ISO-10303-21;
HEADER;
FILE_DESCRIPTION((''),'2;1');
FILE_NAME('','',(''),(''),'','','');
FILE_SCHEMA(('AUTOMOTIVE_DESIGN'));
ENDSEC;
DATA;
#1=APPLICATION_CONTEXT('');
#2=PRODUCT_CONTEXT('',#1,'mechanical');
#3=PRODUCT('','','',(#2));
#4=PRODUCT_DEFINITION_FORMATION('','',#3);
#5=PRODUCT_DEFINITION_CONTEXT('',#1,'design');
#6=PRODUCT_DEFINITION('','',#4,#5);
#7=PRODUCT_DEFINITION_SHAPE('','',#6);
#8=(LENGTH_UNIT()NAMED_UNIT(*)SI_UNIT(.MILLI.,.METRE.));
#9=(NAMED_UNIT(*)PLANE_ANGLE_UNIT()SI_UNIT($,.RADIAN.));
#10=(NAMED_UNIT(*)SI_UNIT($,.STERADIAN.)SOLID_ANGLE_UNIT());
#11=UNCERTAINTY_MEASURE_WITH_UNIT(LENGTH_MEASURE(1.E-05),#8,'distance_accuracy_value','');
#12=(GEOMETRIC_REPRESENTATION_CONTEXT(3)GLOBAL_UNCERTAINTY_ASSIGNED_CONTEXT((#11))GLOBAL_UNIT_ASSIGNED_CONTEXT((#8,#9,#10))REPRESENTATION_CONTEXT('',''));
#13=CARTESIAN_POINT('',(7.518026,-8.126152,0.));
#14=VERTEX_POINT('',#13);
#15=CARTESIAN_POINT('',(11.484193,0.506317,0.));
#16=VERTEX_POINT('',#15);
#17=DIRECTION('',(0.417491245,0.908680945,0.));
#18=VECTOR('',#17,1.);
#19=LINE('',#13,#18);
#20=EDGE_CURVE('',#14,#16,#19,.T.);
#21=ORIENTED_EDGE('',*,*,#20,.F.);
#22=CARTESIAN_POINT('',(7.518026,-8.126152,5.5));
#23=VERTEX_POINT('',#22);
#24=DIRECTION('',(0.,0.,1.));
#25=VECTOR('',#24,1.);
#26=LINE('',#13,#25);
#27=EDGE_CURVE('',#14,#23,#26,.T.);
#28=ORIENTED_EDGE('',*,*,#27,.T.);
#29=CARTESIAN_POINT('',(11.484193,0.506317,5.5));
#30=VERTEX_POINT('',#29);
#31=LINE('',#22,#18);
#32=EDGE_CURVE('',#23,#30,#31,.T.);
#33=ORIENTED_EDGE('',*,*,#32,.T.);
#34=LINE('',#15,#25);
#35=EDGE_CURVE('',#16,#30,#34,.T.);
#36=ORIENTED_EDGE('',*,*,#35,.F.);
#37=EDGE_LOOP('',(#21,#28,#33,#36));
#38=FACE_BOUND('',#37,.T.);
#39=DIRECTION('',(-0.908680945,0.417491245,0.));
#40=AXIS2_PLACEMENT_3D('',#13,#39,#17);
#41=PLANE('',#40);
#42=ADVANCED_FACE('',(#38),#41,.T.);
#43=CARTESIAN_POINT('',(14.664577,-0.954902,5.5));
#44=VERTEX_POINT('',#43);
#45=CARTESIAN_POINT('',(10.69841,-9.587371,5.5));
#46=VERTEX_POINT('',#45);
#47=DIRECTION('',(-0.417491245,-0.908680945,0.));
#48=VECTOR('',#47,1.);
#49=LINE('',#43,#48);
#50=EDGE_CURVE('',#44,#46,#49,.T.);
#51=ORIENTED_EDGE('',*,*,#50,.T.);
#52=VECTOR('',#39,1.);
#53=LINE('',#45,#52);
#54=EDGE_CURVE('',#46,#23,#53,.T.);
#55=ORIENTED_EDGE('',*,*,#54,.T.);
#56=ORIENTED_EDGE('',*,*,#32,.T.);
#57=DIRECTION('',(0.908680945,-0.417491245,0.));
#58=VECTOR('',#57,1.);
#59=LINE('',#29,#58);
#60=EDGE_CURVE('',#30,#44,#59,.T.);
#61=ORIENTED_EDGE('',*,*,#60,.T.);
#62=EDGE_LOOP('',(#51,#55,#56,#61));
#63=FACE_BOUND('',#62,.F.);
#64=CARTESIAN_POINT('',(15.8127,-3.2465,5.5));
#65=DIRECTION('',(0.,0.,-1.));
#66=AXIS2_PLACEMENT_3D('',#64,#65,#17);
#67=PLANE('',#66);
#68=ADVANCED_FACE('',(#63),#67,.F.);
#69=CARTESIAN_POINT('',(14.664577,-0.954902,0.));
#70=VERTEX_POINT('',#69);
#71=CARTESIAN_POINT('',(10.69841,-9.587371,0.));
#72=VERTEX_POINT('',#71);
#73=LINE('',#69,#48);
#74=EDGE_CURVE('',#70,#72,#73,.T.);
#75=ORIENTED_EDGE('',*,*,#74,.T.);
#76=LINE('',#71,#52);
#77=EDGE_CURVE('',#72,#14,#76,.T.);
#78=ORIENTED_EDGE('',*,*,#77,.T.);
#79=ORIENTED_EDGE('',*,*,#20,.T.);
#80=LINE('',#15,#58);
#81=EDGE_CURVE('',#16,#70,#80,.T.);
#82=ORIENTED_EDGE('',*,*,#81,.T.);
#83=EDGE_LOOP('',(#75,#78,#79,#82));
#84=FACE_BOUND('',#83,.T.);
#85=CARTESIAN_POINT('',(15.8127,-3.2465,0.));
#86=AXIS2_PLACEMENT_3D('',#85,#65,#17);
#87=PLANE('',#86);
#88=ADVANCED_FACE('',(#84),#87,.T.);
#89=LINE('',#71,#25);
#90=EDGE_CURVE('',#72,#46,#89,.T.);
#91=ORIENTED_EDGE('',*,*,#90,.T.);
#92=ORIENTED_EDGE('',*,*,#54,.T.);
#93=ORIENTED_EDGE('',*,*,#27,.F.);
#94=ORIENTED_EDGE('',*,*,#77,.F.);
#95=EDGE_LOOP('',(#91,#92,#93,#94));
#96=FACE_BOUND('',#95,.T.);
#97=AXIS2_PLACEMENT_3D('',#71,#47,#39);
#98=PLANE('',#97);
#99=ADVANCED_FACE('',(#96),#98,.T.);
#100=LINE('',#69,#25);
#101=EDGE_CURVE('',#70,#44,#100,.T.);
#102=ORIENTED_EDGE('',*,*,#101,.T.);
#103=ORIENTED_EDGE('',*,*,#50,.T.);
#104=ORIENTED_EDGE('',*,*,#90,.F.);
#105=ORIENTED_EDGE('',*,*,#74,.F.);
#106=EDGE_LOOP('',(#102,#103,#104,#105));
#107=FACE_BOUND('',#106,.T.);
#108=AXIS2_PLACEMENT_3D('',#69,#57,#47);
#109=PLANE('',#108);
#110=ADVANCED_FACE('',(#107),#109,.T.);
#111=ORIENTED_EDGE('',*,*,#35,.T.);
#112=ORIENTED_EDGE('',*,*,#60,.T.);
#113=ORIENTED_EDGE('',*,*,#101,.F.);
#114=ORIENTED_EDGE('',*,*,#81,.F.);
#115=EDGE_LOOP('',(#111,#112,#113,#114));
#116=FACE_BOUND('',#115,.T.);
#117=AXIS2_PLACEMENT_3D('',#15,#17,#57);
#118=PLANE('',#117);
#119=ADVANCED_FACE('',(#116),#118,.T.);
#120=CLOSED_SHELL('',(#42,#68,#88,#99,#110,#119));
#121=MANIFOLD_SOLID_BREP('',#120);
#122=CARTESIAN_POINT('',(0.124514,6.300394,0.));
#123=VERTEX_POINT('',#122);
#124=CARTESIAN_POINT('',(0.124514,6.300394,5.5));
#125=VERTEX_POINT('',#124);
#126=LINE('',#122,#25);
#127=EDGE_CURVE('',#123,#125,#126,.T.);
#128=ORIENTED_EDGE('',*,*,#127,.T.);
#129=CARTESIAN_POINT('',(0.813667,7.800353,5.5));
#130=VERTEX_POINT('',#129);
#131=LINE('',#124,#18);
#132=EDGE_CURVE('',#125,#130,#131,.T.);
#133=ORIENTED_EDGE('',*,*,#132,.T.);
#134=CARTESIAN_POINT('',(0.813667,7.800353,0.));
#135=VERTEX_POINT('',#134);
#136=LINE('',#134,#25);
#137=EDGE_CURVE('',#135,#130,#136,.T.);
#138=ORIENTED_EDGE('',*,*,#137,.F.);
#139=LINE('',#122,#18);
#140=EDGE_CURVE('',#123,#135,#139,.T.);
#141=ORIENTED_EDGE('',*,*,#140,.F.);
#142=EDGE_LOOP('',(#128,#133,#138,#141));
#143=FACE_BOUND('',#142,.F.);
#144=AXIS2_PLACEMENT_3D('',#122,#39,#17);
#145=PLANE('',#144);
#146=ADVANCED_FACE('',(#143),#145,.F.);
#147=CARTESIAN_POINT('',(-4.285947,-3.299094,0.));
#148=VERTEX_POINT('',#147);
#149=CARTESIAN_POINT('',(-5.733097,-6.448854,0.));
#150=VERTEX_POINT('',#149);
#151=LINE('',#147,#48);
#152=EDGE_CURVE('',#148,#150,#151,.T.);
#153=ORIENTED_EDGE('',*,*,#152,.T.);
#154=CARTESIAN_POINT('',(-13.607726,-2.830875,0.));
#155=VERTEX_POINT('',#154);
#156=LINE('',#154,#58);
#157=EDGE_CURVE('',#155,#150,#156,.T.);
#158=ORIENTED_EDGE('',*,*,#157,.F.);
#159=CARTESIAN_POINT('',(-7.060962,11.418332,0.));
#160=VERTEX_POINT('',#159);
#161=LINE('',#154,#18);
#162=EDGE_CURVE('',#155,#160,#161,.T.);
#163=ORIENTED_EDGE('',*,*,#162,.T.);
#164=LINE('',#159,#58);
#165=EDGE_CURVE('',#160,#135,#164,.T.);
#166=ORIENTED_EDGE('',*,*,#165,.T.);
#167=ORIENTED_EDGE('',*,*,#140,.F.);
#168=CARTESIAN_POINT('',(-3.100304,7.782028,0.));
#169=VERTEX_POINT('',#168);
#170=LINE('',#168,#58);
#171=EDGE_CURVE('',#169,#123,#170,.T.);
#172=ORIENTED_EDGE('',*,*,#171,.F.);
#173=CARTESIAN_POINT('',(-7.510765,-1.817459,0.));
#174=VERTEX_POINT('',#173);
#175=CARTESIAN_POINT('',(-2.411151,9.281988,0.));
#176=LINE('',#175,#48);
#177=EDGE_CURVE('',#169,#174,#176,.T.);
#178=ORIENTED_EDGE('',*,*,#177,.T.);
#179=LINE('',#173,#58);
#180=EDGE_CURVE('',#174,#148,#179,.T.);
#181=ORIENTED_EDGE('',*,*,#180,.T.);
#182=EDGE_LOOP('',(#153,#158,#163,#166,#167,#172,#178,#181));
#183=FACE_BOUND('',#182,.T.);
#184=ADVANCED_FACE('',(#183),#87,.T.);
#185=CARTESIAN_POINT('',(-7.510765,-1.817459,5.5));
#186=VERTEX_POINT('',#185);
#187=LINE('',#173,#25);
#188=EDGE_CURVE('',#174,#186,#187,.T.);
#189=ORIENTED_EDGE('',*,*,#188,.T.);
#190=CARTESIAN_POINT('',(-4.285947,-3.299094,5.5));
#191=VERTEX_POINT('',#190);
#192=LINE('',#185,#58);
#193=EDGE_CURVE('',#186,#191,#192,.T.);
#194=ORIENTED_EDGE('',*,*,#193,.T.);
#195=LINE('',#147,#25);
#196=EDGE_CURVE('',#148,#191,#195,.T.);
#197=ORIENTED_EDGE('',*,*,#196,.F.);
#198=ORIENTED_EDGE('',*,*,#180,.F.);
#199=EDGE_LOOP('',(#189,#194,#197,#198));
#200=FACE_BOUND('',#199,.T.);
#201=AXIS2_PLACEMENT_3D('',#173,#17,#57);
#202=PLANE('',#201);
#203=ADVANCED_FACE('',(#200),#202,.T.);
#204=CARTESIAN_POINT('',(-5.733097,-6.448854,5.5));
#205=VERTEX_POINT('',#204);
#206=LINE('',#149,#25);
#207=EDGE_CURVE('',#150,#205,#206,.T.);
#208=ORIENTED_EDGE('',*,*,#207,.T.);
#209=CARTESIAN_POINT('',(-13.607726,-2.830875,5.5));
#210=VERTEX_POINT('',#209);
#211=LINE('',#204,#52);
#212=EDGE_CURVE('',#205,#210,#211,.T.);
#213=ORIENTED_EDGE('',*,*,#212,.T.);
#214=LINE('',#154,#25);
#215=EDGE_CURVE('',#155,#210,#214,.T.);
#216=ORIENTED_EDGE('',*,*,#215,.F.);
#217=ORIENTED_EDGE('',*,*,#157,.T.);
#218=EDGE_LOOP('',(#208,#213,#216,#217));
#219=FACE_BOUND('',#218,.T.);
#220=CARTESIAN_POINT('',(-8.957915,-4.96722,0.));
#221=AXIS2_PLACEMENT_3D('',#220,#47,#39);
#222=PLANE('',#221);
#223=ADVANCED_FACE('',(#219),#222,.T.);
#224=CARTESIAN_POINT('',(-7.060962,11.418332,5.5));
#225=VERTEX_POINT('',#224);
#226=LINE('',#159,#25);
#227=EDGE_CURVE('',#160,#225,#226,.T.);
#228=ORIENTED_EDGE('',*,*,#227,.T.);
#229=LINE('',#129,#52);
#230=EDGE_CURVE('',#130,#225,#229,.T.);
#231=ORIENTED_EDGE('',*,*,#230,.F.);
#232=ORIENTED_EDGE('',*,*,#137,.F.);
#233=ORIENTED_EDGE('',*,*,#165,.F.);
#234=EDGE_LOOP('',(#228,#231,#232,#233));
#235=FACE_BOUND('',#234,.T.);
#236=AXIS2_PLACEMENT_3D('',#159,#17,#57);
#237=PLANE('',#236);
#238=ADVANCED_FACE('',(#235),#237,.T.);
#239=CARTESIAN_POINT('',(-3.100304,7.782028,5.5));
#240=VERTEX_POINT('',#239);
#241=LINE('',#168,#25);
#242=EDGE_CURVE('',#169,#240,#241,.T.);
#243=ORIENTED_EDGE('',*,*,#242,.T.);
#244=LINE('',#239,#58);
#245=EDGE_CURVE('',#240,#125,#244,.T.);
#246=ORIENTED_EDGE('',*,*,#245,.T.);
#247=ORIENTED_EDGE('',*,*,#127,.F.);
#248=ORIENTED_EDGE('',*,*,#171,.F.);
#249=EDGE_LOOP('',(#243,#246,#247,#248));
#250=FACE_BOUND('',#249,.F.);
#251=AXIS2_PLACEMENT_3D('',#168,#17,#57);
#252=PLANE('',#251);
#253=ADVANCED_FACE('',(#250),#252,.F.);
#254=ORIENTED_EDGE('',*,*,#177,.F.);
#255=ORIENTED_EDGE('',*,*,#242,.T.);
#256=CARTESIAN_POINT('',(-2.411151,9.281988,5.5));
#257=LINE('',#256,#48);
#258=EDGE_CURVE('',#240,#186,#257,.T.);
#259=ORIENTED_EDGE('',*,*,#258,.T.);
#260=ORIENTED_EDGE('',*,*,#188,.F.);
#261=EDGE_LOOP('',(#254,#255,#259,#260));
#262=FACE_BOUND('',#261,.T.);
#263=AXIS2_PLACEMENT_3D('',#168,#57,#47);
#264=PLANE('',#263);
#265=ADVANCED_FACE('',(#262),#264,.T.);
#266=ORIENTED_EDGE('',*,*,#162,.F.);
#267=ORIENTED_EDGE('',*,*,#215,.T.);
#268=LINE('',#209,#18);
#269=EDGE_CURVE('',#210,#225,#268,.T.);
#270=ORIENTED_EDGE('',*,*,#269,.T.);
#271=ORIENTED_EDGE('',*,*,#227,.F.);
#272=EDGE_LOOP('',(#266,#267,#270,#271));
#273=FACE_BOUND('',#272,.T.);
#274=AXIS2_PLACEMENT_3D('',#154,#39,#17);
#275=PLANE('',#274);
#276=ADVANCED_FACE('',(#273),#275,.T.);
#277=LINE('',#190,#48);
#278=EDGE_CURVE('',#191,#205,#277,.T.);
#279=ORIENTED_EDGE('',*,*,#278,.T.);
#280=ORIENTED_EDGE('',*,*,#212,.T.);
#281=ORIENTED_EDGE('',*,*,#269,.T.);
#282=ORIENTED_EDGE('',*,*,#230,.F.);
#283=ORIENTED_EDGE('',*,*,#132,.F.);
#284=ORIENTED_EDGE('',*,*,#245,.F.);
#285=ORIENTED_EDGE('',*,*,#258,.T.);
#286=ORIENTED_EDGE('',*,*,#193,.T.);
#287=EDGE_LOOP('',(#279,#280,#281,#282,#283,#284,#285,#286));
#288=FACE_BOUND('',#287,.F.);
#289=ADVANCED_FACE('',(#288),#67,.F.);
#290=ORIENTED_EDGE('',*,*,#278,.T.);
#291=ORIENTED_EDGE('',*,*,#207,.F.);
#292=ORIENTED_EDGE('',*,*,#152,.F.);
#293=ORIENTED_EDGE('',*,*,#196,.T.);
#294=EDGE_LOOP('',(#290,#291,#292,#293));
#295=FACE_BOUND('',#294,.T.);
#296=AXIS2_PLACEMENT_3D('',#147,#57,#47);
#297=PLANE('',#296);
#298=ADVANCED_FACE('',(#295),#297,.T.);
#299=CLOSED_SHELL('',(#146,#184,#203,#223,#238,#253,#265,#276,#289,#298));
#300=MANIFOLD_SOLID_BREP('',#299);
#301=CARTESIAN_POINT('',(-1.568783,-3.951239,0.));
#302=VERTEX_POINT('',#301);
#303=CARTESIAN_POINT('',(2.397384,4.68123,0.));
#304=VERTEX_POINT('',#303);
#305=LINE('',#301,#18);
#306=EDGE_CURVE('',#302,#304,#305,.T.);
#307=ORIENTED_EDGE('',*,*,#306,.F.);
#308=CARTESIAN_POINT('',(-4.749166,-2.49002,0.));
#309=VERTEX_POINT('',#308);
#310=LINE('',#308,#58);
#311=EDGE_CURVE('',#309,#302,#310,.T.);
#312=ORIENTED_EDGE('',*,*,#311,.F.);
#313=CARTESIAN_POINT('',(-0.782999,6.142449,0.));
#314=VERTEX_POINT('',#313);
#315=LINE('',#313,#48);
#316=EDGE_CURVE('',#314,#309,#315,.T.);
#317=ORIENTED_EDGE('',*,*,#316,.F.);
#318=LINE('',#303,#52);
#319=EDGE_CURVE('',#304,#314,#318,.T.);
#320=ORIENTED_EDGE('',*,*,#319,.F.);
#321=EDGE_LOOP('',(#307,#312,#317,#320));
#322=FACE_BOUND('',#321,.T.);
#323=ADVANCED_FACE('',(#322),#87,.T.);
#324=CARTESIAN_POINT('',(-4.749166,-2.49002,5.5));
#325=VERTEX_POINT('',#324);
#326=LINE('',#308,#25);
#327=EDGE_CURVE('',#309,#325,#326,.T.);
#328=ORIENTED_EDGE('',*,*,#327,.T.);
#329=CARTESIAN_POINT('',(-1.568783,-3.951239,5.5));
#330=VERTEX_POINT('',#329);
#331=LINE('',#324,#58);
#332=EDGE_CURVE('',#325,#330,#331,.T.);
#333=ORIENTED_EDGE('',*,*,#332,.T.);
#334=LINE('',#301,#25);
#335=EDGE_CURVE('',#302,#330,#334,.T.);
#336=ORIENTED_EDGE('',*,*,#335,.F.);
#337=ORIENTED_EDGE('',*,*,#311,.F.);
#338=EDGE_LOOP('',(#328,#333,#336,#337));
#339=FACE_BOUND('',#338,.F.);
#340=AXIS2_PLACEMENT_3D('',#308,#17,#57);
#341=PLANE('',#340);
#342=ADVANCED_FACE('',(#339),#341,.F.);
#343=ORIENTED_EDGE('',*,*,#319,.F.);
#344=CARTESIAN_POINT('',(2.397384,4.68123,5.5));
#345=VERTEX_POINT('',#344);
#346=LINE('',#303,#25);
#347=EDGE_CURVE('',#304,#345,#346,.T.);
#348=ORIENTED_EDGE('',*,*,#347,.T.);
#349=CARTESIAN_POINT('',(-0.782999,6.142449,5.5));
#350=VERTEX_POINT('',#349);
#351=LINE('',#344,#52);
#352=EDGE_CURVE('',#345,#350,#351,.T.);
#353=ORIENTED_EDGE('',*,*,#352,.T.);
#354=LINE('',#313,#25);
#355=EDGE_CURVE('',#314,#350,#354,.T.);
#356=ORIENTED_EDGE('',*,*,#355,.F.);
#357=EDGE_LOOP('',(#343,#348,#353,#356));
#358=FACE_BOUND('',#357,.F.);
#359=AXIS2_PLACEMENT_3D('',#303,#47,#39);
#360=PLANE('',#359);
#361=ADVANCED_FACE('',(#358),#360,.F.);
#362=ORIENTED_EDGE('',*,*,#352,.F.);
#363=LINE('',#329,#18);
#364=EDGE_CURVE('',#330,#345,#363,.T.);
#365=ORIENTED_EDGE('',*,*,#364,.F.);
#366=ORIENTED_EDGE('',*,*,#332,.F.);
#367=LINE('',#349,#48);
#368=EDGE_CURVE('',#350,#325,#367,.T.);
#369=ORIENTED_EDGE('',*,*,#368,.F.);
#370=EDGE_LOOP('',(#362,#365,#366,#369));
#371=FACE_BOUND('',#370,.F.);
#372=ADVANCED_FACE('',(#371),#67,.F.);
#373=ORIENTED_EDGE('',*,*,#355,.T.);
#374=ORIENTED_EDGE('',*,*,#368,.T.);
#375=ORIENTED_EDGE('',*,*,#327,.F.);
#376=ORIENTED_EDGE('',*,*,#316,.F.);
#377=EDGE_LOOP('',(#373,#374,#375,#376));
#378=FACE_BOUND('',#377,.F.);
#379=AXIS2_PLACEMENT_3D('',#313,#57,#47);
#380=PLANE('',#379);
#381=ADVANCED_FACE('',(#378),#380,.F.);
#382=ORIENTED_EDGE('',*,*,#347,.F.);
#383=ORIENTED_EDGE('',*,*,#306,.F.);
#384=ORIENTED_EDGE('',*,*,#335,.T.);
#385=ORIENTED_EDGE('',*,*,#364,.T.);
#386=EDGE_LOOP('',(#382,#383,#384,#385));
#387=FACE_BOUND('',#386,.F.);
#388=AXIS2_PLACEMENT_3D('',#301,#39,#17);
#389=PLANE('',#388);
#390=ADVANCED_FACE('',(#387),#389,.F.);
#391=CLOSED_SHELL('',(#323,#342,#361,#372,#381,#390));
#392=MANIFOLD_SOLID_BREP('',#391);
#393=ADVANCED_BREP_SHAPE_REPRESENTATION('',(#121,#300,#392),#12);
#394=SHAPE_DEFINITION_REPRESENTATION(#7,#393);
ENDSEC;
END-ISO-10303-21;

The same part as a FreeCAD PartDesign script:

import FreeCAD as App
import Part
import Sketcher
Q = App.Units.Quantity


def add_polygon(sketch, points):
    """Adds a closed chain of lines whose ends are joined by coincident constraints."""
    first, n = sketch.GeometryCount, len(points)
    for a, b in zip(points, points[1:] + points[:1]):
        sketch.addGeometry(Part.LineSegment(App.Vector(*a, 0), App.Vector(*b, 0)), False)
    for i in range(n):
        sketch.addConstraint(Sketcher.Constraint("Coincident", first + i, 2, first + (i + 1) % n, 1))

doc = App.newDocument("Part")
body = doc.addObject("PartDesign::Body", "Body")
body.AllowCompound = True

sketch1 = body.newObject("Sketcher::SketchObject", "Sketch")
sketch1.AttachmentSupport = (doc.getObject("XY_Plane"), [""])
sketch1.MapMode = "FlatFace"
add_polygon(sketch1, [(-4.7, -2.5), (-0.8, 6.1), (2.4, 4.7), (-1.6, -4)])
add_polygon(sketch1, [(11.5, 0.5), (14.7, -1), (10.7, -9.6), (7.5, -8.1)])
sketch1.addConstraint(Sketcher.Constraint("Perpendicular", 0, 1))
sketch1.addConstraint(Sketcher.Constraint("Perpendicular", 1, 2))
sketch1.addConstraint(Sketcher.Constraint("Perpendicular", 2, 3))
sketch1.addConstraint(Sketcher.Constraint("Parallel", 3, 4))
sketch1.addConstraint(Sketcher.Constraint("Perpendicular", 4, 5))
sketch1.addConstraint(Sketcher.Constraint("Perpendicular", 5, 6))
sketch1.addConstraint(Sketcher.Constraint("Perpendicular", 6, 7))
sketch1.addConstraint(Sketcher.Constraint("Equal", 3, 4))
sketch1.addConstraint(Sketcher.Constraint("Equal", 2, 5))
sketch1.addConstraint(Sketcher.Constraint("Distance", 0, Q("9.5 mm")))
sketch1.addConstraint(Sketcher.Constraint("Distance", 1, Q("3.5 mm")))
sketch1.addConstraint(Sketcher.Constraint("DistanceY", 3, 2, -1, 1, Q("2.49 mm")))
sketch1.addConstraint(Sketcher.Constraint("DistanceX", 0, 2, -1, 1, Q("0.783 mm")))
sketch1.addConstraint(Sketcher.Constraint("DistanceY", 4, 2, -1, 1, Q("0.955 mm")))
sketch1.addConstraint(Sketcher.Constraint("DistanceX", -1, 1, 6, 2, Q("7.518 mm")))
sketch1.addConstraint(Sketcher.Constraint("DistanceY", 6, 2, 2, 2, Q("4.175 mm")))
pad1 = body.newObject("PartDesign::Pad", "Pad")
pad1.Profile = sketch1
pad1.Length = 5.5

sketch2 = body.newObject("Sketcher::SketchObject", "Sketch001")
sketch2.AttachmentSupport = (doc.getObject("XY_Plane"), [""])
sketch2.MapMode = "FlatFace"
add_polygon(sketch2, [(-13.6, -2.8), (-7.1, 11.4), (0.8, 7.8), (0.1, 6.3), (-3.1, 7.8), (-7.5, -1.8), (-4.3, -3.3), (-5.7, -6.4)])
sketch2.addConstraint(Sketcher.Constraint("Perpendicular", 0, 1))
sketch2.addConstraint(Sketcher.Constraint("Perpendicular", 1, 2))
sketch2.addConstraint(Sketcher.Constraint("Perpendicular", 2, 3))
sketch2.addConstraint(Sketcher.Constraint("Perpendicular", 3, 4))
sketch2.addConstraint(Sketcher.Constraint("Perpendicular", 4, 5))
sketch2.addConstraint(Sketcher.Constraint("Perpendicular", 5, 6))
sketch2.addConstraint(Sketcher.Constraint("Perpendicular", 6, 7))
sketch2.addConstraint(Sketcher.Constraint("Equal", 3, 5))
sketch2.addConstraint(Sketcher.Constraint("DistanceY", 2, 2, 1, 2, Q("1.5 mm")))
sketch2.addConstraint(Sketcher.Constraint("Distance", 1, Q("8.666 mm")))
sketch2.addConstraint(Sketcher.Constraint("Distance", 3, Q("3.549 mm")))
sketch2.addConstraint(Sketcher.Constraint("DistanceX", 0, 2, -1, 1, Q("7.061 mm")))
sketch2.addConstraint(Sketcher.Constraint("DistanceY", -1, 1, 3, 2, Q("7.782 mm")))
sketch2.addConstraint(Sketcher.Constraint("DistanceX", 5, 2, -1, 1, Q("4.286 mm")))
sketch2.addConstraint(Sketcher.Constraint("DistanceY", 5, 2, -1, 1, Q("3.299 mm")))
sketch2.addConstraint(Sketcher.Constraint("DistanceX", 6, 2, -1, 1, Q("5.733 mm")))
pad2 = body.newObject("PartDesign::Pad", "Pad001")
pad2.Profile = sketch2
pad2.Length = 5.5

doc.recompute()
